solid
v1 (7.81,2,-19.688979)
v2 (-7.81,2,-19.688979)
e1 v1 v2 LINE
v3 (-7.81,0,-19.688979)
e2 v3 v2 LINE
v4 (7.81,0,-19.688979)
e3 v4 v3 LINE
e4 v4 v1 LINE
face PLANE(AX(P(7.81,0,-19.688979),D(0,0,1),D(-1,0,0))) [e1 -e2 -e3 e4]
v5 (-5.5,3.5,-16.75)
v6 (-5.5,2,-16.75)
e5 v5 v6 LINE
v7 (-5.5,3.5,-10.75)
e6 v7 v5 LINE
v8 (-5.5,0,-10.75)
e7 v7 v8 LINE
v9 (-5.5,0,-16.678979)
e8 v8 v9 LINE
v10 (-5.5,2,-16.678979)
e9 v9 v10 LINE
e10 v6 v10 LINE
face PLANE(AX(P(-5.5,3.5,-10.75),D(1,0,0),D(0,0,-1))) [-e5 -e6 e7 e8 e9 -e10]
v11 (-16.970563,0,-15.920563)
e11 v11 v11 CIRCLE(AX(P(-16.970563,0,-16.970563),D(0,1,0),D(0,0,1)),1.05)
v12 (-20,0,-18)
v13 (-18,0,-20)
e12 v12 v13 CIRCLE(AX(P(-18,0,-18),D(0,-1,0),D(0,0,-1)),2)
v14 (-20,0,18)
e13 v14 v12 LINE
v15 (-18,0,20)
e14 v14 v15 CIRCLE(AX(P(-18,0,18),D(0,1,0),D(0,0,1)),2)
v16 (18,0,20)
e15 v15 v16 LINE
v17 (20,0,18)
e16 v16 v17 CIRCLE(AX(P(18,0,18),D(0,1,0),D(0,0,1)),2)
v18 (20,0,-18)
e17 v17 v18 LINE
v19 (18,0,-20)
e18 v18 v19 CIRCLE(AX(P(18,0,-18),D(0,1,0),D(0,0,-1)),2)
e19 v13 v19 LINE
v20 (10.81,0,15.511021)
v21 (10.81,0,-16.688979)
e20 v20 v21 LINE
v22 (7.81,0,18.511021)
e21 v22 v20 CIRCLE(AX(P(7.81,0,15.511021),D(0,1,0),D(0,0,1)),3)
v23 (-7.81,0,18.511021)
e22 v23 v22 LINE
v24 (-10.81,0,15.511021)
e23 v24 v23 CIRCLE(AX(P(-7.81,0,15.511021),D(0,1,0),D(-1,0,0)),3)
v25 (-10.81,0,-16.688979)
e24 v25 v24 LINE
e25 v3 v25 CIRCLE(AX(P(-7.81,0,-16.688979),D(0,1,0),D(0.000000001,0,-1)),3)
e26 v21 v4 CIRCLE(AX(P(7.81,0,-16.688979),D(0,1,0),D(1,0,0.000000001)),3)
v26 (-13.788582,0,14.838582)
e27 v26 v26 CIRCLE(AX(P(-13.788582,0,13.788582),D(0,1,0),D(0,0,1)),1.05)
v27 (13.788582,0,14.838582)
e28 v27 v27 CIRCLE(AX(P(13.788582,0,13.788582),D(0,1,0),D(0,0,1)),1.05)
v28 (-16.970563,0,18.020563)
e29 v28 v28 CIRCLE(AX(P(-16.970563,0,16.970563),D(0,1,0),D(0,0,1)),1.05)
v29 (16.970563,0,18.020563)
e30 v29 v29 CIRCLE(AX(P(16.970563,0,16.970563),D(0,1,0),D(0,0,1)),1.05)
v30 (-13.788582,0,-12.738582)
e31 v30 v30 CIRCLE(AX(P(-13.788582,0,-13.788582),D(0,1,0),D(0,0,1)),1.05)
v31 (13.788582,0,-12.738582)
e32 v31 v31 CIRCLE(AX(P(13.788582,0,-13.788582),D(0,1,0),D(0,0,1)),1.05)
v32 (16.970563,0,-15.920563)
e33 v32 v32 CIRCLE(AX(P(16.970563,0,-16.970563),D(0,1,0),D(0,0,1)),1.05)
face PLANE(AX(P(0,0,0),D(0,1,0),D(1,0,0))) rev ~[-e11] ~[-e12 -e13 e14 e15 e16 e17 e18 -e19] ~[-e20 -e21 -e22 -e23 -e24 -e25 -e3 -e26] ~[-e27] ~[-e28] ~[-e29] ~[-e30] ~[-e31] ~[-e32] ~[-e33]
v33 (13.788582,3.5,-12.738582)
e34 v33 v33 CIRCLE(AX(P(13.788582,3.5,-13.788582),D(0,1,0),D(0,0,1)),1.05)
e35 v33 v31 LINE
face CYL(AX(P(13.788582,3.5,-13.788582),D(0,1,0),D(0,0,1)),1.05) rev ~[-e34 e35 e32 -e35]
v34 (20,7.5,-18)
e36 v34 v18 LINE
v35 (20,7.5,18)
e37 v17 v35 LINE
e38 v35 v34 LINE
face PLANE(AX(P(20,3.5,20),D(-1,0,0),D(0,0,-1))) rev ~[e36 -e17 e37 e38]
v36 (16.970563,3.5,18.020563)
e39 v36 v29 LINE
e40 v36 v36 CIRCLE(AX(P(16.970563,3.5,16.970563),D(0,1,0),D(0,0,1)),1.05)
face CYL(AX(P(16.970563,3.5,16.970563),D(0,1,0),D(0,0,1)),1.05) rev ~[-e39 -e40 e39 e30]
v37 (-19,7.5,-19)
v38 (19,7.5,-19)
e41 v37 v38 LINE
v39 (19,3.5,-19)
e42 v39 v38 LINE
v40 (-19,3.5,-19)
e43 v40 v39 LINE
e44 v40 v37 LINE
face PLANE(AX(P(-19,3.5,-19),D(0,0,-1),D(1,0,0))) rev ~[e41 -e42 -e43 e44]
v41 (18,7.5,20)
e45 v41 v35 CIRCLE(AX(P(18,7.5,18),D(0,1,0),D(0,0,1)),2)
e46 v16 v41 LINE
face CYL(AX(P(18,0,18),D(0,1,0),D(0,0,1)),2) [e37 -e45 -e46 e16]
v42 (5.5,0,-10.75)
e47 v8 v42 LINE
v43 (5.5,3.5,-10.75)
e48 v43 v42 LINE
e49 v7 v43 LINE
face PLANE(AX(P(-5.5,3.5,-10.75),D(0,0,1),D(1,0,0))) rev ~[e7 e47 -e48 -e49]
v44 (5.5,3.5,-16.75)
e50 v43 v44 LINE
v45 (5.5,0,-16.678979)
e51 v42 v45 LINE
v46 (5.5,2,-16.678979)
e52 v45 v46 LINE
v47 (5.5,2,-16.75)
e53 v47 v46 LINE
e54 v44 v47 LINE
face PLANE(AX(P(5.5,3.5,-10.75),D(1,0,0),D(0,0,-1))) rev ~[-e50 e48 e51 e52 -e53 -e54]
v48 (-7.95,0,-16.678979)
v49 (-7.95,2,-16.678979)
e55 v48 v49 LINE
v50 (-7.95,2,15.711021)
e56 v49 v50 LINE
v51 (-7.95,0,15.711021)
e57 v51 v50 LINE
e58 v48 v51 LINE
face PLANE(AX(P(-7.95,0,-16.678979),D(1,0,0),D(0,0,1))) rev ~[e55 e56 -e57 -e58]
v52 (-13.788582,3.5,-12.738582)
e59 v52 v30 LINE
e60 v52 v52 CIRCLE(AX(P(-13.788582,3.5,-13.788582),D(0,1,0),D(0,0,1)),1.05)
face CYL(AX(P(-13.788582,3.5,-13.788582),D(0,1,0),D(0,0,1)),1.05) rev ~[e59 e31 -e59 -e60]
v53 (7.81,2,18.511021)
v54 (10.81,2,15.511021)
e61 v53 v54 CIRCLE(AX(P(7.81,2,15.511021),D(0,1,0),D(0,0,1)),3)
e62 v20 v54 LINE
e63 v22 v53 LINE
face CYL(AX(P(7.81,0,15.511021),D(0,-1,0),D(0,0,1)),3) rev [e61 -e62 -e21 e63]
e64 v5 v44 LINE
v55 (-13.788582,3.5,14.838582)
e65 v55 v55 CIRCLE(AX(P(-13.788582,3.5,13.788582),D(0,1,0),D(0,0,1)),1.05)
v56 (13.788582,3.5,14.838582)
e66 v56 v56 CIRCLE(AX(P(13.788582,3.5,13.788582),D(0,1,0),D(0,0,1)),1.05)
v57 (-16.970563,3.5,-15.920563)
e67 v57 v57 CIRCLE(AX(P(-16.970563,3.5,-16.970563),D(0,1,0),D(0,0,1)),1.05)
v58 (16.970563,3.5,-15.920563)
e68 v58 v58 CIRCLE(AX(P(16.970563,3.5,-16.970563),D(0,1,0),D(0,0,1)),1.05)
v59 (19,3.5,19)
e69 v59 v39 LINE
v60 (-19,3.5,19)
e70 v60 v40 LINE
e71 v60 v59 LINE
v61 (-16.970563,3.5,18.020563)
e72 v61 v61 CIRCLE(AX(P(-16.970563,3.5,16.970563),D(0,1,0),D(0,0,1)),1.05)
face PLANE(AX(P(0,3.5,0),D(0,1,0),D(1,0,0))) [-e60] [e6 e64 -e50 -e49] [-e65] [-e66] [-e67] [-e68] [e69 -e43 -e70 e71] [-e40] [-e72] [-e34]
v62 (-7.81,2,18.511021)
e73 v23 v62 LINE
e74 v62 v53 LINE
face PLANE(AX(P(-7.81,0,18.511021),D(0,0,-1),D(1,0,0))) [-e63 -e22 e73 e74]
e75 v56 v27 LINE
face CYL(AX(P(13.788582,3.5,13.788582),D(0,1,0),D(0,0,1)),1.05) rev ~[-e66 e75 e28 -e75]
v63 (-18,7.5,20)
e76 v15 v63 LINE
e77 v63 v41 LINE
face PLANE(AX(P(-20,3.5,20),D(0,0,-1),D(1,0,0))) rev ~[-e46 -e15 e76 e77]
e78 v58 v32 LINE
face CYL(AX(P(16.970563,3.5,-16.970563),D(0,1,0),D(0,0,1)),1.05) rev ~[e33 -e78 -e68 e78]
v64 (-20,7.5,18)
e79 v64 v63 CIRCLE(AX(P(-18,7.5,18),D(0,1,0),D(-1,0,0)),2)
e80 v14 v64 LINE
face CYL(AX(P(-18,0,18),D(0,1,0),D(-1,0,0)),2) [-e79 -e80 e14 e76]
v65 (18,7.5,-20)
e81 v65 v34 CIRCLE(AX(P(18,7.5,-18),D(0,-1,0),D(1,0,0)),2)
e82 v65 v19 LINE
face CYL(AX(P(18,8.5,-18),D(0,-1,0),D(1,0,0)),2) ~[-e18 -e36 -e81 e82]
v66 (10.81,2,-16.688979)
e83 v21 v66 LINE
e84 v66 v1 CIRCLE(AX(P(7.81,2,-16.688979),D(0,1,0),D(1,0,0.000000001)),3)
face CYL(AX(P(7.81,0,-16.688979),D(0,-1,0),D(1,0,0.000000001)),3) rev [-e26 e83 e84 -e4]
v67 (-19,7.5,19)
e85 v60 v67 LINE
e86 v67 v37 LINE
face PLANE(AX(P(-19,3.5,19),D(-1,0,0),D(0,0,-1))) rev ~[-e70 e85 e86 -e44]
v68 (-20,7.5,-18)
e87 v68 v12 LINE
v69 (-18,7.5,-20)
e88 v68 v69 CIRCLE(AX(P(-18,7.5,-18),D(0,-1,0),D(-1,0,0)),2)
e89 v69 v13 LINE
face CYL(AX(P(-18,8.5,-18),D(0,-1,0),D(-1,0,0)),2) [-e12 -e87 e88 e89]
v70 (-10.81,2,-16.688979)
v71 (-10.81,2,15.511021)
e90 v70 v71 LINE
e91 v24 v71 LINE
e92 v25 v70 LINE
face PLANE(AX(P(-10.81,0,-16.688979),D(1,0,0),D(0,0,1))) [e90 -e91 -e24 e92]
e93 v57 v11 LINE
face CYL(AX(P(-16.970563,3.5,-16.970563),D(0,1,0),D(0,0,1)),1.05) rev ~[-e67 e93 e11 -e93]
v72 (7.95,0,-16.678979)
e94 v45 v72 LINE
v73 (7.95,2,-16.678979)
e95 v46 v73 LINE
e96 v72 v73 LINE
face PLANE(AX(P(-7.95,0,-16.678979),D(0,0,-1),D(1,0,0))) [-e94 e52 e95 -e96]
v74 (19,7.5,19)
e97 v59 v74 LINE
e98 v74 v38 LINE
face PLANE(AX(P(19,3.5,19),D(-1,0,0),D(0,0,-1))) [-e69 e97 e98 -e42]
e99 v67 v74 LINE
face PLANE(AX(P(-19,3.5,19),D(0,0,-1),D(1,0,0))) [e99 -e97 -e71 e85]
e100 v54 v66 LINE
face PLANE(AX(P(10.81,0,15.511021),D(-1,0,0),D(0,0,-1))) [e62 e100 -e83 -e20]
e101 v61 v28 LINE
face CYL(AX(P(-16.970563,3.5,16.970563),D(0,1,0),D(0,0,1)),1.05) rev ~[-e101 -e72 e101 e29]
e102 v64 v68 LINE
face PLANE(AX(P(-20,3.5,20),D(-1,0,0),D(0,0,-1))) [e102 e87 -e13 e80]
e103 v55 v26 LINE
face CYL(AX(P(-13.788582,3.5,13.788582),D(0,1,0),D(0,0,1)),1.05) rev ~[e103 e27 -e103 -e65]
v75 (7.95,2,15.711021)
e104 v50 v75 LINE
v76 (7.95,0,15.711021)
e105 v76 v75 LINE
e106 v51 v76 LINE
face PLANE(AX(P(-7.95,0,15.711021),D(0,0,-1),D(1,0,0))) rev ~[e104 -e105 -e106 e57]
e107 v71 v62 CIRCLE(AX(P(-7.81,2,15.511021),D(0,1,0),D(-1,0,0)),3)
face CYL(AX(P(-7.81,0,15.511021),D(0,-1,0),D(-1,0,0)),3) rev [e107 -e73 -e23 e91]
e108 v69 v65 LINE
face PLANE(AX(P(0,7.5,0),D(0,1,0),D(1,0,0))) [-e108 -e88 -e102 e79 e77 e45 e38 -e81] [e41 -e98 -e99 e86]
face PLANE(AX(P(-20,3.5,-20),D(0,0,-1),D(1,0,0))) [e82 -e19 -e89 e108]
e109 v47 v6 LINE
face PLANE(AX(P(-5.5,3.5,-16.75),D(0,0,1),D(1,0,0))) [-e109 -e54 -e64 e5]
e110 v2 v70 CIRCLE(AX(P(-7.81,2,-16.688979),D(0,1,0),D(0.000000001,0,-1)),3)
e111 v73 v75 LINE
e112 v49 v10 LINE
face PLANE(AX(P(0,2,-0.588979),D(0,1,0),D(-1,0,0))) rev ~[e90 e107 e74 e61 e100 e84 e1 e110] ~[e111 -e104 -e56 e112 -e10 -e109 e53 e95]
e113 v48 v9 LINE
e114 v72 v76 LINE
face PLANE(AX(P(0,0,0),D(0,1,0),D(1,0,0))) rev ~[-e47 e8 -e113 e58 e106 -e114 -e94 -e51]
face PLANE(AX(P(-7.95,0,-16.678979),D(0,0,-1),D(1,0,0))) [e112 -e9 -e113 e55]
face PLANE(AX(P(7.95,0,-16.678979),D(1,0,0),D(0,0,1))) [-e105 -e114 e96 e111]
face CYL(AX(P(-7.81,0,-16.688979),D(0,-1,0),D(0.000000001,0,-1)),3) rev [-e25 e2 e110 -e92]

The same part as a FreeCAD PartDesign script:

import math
import FreeCAD as App
import Part
import Sketcher
from FreeCAD import Vector


def edges_at(feature, points):
    """Names of the edges that pass closest to the given points."""
    edges = feature.Shape.Edges
    near = lambda p: min(range(len(edges)), key=lambda i: edges[i].distToShape(Part.Vertex(*p))[0])
    return sorted({f"Edge{near(p) + 1}" for p in points})

doc = App.newDocument("Part")
body = doc.addObject("PartDesign::Body", "Body")

# Sketch on XZ plane
sketch1 = doc.addObject("Sketcher::SketchObject", "Sketch")
body.addObject(sketch1)
sketch1.AttachmentSupport = (doc.XZ_Plane, [""])
sketch1.MapMode = "FlatFace"
sketch1.addGeometry(Part.LineSegment(Vector(-20, -20, 0), Vector(-20, 20, 0)), False)
sketch1.addGeometry(Part.LineSegment(Vector(-20, 20, 0), Vector(20, 20, 0)), False)
sketch1.addGeometry(Part.LineSegment(Vector(20, 20, 0), Vector(20, -20, 0)), False)
sketch1.addGeometry(Part.LineSegment(Vector(20, -20, 0), Vector(-20, -20, 0)), False)
sketch1.addConstraint(Sketcher.Constraint("Coincident", 0, 2, 1, 1))
sketch1.addConstraint(Sketcher.Constraint("Coincident", 1, 2, 2, 1))
sketch1.addConstraint(Sketcher.Constraint("Coincident", 2, 2, 3, 1))
sketch1.addConstraint(Sketcher.Constraint("Coincident", 3, 2, 0, 1))
sketch1.addConstraint(Sketcher.Constraint("Vertical", 0))
sketch1.addConstraint(Sketcher.Constraint("Horizontal", 1))
sketch1.addConstraint(Sketcher.Constraint("Vertical", 2))
sketch1.addConstraint(Sketcher.Constraint("Horizontal", 3))
sketch1.addConstraint(Sketcher.Constraint("Symmetric", 0, 2, 2, 2, -1, 1))
sketch1.addConstraint(Sketcher.Constraint("Equal", 3, 0))
sketch1.addConstraint(Sketcher.Constraint("DistanceX", 1, 1, 1, 2, 40.0))
pad1 = doc.addObject("PartDesign::Pad", "Pad")
body.addObject(pad1)
pad1.Profile = sketch1
pad1.Length = 3.5
pad1.Reversed = True

# Sketch on XZ plane
sketch2 = doc.addObject("Sketcher::SketchObject", "Sketch001")
body.addObject(sketch2)
sketch2.AttachmentSupport = (doc.XZ_Plane, [""])
sketch2.MapMode = "FlatFace"
sketch2.AttachmentOffset = App.Placement(Vector(0, 0, -3.5), App.Rotation())
sketch2.addGeometry(Part.Circle(Vector(-17, -17, 0), Vector(0, 0, 1), 1.1), False)
sketch2.addGeometry(Part.Circle(Vector(17, -17, 0), Vector(0, 0, 1), 1.1), False)
sketch2.addGeometry(Part.Circle(Vector(-17, 17, 0), Vector(0, 0, 1), 1.1), False)
sketch2.addGeometry(Part.Circle(Vector(17, 17, 0), Vector(0, 0, 1), 1.1), False)
sketch2.addGeometry(Part.Circle(Vector(-13.8, -13.8, 0), Vector(0, 0, 1), 1.1), False)
sketch2.addGeometry(Part.Circle(Vector(13.8, -13.8, 0), Vector(0, 0, 1), 1.1), False)
sketch2.addGeometry(Part.Circle(Vector(13.8, 13.8, 0), Vector(0, 0, 1), 1.1), False)
sketch2.addGeometry(Part.Circle(Vector(-13.8, 13.8, 0), Vector(0, 0, 1), 1.1), False)
sketch2.addConstraint(Sketcher.Constraint("Equal", 0, 1))
sketch2.addConstraint(Sketcher.Constraint("Equal", 1, 2))
sketch2.addConstraint(Sketcher.Constraint("Equal", 2, 3))
sketch2.addConstraint(Sketcher.Constraint("Equal", 3, 4))
sketch2.addConstraint(Sketcher.Constraint("Equal", 4, 5))
sketch2.addConstraint(Sketcher.Constraint("Equal", 5, 6))
sketch2.addConstraint(Sketcher.Constraint("Equal", 6, 7))
sketch2.addConstraint(Sketcher.Constraint("Symmetric", 1, 3, 2, 3, -1, 1))
sketch2.addConstraint(Sketcher.Constraint("Symmetric", 0, 3, 3, 3, -1, 1))
sketch2.addConstraint(Sketcher.Constraint("Symmetric", 4, 3, 6, 3, -1, 1))
sketch2.addConstraint(Sketcher.Constraint("Symmetric", 5, 3, 7, 3, -1, 1))
sketch2.addConstraint(Sketcher.Constraint("Symmetric", 0, 3, 1, 3, -2))
sketch2.addConstraint(Sketcher.Constraint("Symmetric", 4, 3, 5, 3, -2))
sketch2.addConstraint(Sketcher.Constraint("Diameter", 0, 2.1))
sketch2.addConstraint(Sketcher.Constraint("DistanceX", 0, 3, 4, 3, 3.181981))
sketch2.addConstraint(Sketcher.Constraint("DistanceY", 0, 3, 4, 3, 3.181981))
sketch2.addConstraint(Sketcher.Constraint("DistanceX", 0, 3, -1, 1, 16.970563))
sketch2.addConstraint(Sketcher.Constraint("DistanceY", 0, 3, -1, 1, 16.970563))
pocket1 = doc.addObject("PartDesign::Pocket", "Pocket")
body.addObject(pocket1)
pocket1.Profile = sketch2
pocket1.Length = 3.5
pocket1.Reversed = True

# Sketch on XZ plane
sketch3 = doc.addObject("Sketcher::SketchObject", "Sketch002")
body.addObject(sketch3)
sketch3.AttachmentSupport = (doc.XZ_Plane, [""])
sketch3.MapMode = "FlatFace"
sketch3.AttachmentOffset = App.Placement(Vector(0, 0, -3.5), App.Rotation())
sketch3.addGeometry(Part.LineSegment(Vector(-20, -20, 0), Vector(-20, 20, 0)), False)
sketch3.addGeometry(Part.LineSegment(Vector(-20, 20, 0), Vector(20, 20, 0)), False)
sketch3.addGeometry(Part.LineSegment(Vector(20, 20, 0), Vector(20, -20, 0)), False)
sketch3.addGeometry(Part.LineSegment(Vector(20, -20, 0), Vector(-20, -20, 0)), False)
sketch3.addGeometry(Part.LineSegment(Vector(19, 19, 0), Vector(-19, 19, 0)), False)
sketch3.addGeometry(Part.LineSegment(Vector(-19, 19, 0), Vector(-19, -19, 0)), False)
sketch3.addGeometry(Part.LineSegment(Vector(-19, -19, 0), Vector(19, -19, 0)), False)
sketch3.addGeometry(Part.LineSegment(Vector(19, -19, 0), Vector(19, 19, 0)), False)
sketch3.addConstraint(Sketcher.Constraint("Coincident", 0, 2, 1, 1))
sketch3.addConstraint(Sketcher.Constraint("Coincident", 1, 2, 2, 1))
sketch3.addConstraint(Sketcher.Constraint("Coincident", 2, 2, 3, 1))
sketch3.addConstraint(Sketcher.Constraint("Coincident", 3, 2, 0, 1))
sketch3.addConstraint(Sketcher.Constraint("Coincident", 4, 2, 5, 1))
sketch3.addConstraint(Sketcher.Constraint("Coincident", 5, 2, 6, 1))
sketch3.addConstraint(Sketcher.Constraint("Coincident", 6, 2, 7, 1))
sketch3.addConstraint(Sketcher.Constraint("Coincident", 7, 2, 4, 1))
sketch3.addConstraint(Sketcher.Constraint("Vertical", 0))
sketch3.addConstraint(Sketcher.Constraint("Horizontal", 1))
sketch3.addConstraint(Sketcher.Constraint("Vertical", 2))
sketch3.addConstraint(Sketcher.Constraint("Horizontal", 3))
sketch3.addConstraint(Sketcher.Constraint("Horizontal", 4))
sketch3.addConstraint(Sketcher.Constraint("Vertical", 5))
sketch3.addConstraint(Sketcher.Constraint("Horizontal", 6))
sketch3.addConstraint(Sketcher.Constraint("Vertical", 7))
sketch3.addConstraint(Sketcher.Constraint("Symmetric", 0, 2, 2, 2, -1, 1))
sketch3.addConstraint(Sketcher.Constraint("Symmetric", 4, 2, 6, 2, -1, 1))
sketch3.addConstraint(Sketcher.Constraint("Equal", 3, 0))
sketch3.addConstraint(Sketcher.Constraint("Equal", 6, 5))
sketch3.addConstraint(Sketcher.Constraint("DistanceX", 1, 1, 1, 2, 40.0))
sketch3.addConstraint(Sketcher.Constraint("DistanceX", 4, 2, 4, 1, 38.0))
pad2 = doc.addObject("PartDesign::Pad", "Pad001")
body.addObject(pad2)
pad2.Profile = sketch3
pad2.Length = 5
pad2.Reversed = True
doc.recompute()

fillet = doc.addObject("PartDesign::Fillet", "Fillet")
body.addObject(fillet)
fillet.Base = (pad2, edges_at(pad2, [
    (20, 4.25, 20),
    (-20, 4.25, 20),
    (-20, 4.25, -20),
    (20, 4.25, -20),
]))
fillet.Radius = 2

# Sketch on XZ plane
sketch4 = doc.addObject("Sketcher::SketchObject", "Sketch003")
body.addObject(sketch4)
sketch4.AttachmentSupport = (doc.XZ_Plane, [""])
sketch4.MapMode = "FlatFace"
sketch4.AttachmentOffset = App.Placement(Vector(0, 0, -3.5), App.Rotation())
sketch4.addGeometry(Part.LineSegment(Vector(-6, -17, 0), Vector(-6, -11, 0)), False)
sketch4.addGeometry(Part.LineSegment(Vector(-6, -11, 0), Vector(6, -11, 0)), False)
sketch4.addGeometry(Part.LineSegment(Vector(6, -11, 0), Vector(6, -17, 0)), False)
sketch4.addGeometry(Part.LineSegment(Vector(6, -17, 0), Vector(-6, -17, 0)), False)
sketch4.addConstraint(Sketcher.Constraint("Coincident", 0, 2, 1, 1))
sketch4.addConstraint(Sketcher.Constraint("Coincident", 1, 2, 2, 1))
sketch4.addConstraint(Sketcher.Constraint("Coincident", 2, 2, 3, 1))
sketch4.addConstraint(Sketcher.Constraint("Coincident", 3, 2, 0, 1))
sketch4.addConstraint(Sketcher.Constraint("Vertical", 0))
sketch4.addConstraint(Sketcher.Constraint("Horizontal", 1))
sketch4.addConstraint(Sketcher.Constraint("Vertical", 2))
sketch4.addConstraint(Sketcher.Constraint("Horizontal", 3))
sketch4.addConstraint(Sketcher.Constraint("DistanceX", 1, 1, 1, 2, 11.0))
sketch4.addConstraint(Sketcher.Constraint("DistanceY", 0, 1, 0, 2, 6.0))
sketch4.addConstraint(Sketcher.Constraint("DistanceX", 0, 2, -1, 1, 5.5))
sketch4.addConstraint(Sketcher.Constraint("DistanceY", 0, 2, -1, 1, 10.75))
pocket2 = doc.addObject("PartDesign::Pocket", "Pocket001")
body.addObject(pocket2)
pocket2.Profile = sketch4
pocket2.Length = 5
pocket2.Reversed = True

# Sketch on XZ plane
sketch5 = doc.addObject("Sketcher::SketchObject", "Sketch004")
body.addObject(sketch5)
sketch5.AttachmentSupport = (doc.XZ_Plane, [""])
sketch5.MapMode = "FlatFace"
sketch5.addGeometry(Part.LineSegment(Vector(7.8, 18.5, 0), Vector(-7.8, 18.5, 0)), False)
sketch5.addGeometry(Part.ArcOfCircle(Part.Circle(Vector(-7.8, 15.5, 0), Vector(0, 0, 1), 3), math.radians(90), math.radians(180)), False)
sketch5.addGeometry(Part.LineSegment(Vector(-10.8, 15.5, 0), Vector(-10.8, -16.7, 0)), False)
sketch5.addGeometry(Part.ArcOfCircle(Part.Circle(Vector(-7.8, -16.7, 0), Vector(0, 0, 1), 3), math.radians(180), math.radians(270)), False)
sketch5.addGeometry(Part.LineSegment(Vector(-7.8, -19.7, 0), Vector(7.8, -19.7, 0)), False)
sketch5.addGeometry(Part.ArcOfCircle(Part.Circle(Vector(7.8, -16.7, 0), Vector(0, 0, 1), 3), math.radians(-90), math.radians(0)), False)
sketch5.addGeometry(Part.LineSegment(Vector(10.8, -16.7, 0), Vector(10.8, 15.5, 0)), False)
sketch5.addGeometry(Part.ArcOfCircle(Part.Circle(Vector(7.8, 15.5, 0), Vector(0, 0, 1), 3), math.radians(0), math.radians(90)), False)
sketch5.addGeometry(Part.LineSegment(Vector(-8, -16.7, 0), Vector(-8, 15.7, 0)), False)
sketch5.addGeometry(Part.LineSegment(Vector(-8, 15.7, 0), Vector(8, 15.7, 0)), False)
sketch5.addGeometry(Part.LineSegment(Vector(8, 15.7, 0), Vector(8, -16.7, 0)), False)
sketch5.addGeometry(Part.LineSegment(Vector(8, -16.7, 0), Vector(-8, -16.7, 0)), False)
sketch5.addConstraint(Sketcher.Constraint("Tangent", 0, 2, 1, 1))
sketch5.addConstraint(Sketcher.Constraint("Tangent", 1, 2, 2, 1))
sketch5.addConstraint(Sketcher.Constraint("Tangent", 2, 2, 3, 1))
sketch5.addConstraint(Sketcher.Constraint("Tangent", 3, 2, 4, 1))
sketch5.addConstraint(Sketcher.Constraint("Tangent", 4, 2, 5, 1))
sketch5.addConstraint(Sketcher.Constraint("Tangent", 5, 2, 6, 1))
sketch5.addConstraint(Sketcher.Constraint("Tangent", 6, 2, 7, 1))
sketch5.addConstraint(Sketcher.Constraint("Tangent", 7, 2, 0, 1))
sketch5.addConstraint(Sketcher.Constraint("Coincident", 8, 2, 9, 1))
sketch5.addConstraint(Sketcher.Constraint("Coincident", 9, 2, 10, 1))
sketch5.addConstraint(Sketcher.Constraint("Coincident", 10, 2, 11, 1))
sketch5.addConstraint(Sketcher.Constraint("Coincident", 11, 2, 8, 1))
sketch5.addConstraint(Sketcher.Constraint("Horizontal", 0))
sketch5.addConstraint(Sketcher.Constraint("Vertical", 2))
sketch5.addConstraint(Sketcher.Constraint("Horizontal", 4))
sketch5.addConstraint(Sketcher.Constraint("Vertical", 6))
sketch5.addConstraint(Sketcher.Constraint("Vertical", 8))
sketch5.addConstraint(Sketcher.Constraint("Horizontal", 9))
sketch5.addConstraint(Sketcher.Constraint("Vertical", 10))
sketch5.addConstraint(Sketcher.Constraint("Horizontal", 11))
sketch5.addConstraint(Sketcher.Constraint("Equal", 1, 3))
sketch5.addConstraint(Sketcher.Constraint("Equal", 3, 5))
sketch5.addConstraint(Sketcher.Constraint("Equal", 5, 7))
sketch5.addConstraint(Sketcher.Constraint("Radius", 1, 3.0))
sketch5.addConstraint(Sketcher.Constraint("DistanceX", 9, 1, 9, 2, 15.9))
sketch5.addConstraint(Sketcher.Constraint("DistanceY", 2, 2, 2, 1, 32.2))
sketch5.addConstraint(Sketcher.Constraint("DistanceX", 0, 2, 0, 1, 15.62))
sketch5.addConstraint(Sketcher.Constraint("DistanceY", 8, 1, 8, 2, 32.39))
sketch5.addConstraint(Sketcher.Constraint("DistanceY", 1, 3, 8, 2, 0.2))
sketch5.addConstraint(Sketcher.Constraint("DistanceX", 1, 3, -1, 1, 7.81))
sketch5.addConstraint(Sketcher.Constraint("DistanceX", 8, 2, -1, 1, 7.95))
sketch5.addConstraint(Sketcher.Constraint("DistanceY", -1, 1, 1, 3, 15.511021))
pocket3 = doc.addObject("PartDesign::Pocket", "Pocket002")
body.addObject(pocket3)
pocket3.Profile = sketch5
pocket3.Length = 2

# Sketch on XZ plane
sketch6 = doc.addObject("Sketcher::SketchObject", "Sketch005")
body.addObject(sketch6)
sketch6.AttachmentSupport = (doc.XZ_Plane, [""])
sketch6.MapMode = "FlatFace"
sketch6.AttachmentOffset = App.Placement(Vector(0, 0, -8.5), App.Rotation())
sketch6.addGeometry(Part.LineSegment(Vector(-22, -22, 0), Vector(-22, 22, 0)), False)
sketch6.addGeometry(Part.LineSegment(Vector(-22, 22, 0), Vector(22, 22, 0)), False)
sketch6.addGeometry(Part.LineSegment(Vector(22, 22, 0), Vector(22, -22, 0)), False)
sketch6.addGeometry(Part.LineSegment(Vector(22, -22, 0), Vector(-22, -22, 0)), False)
sketch6.addConstraint(Sketcher.Constraint("Coincident", 0, 2, 1, 1))
sketch6.addConstraint(Sketcher.Constraint("Coincident", 1, 2, 2, 1))
sketch6.addConstraint(Sketcher.Constraint("Coincident", 2, 2, 3, 1))
sketch6.addConstraint(Sketcher.Constraint("Coincident", 3, 2, 0, 1))
sketch6.addConstraint(Sketcher.Constraint("Vertical", 0))
sketch6.addConstraint(Sketcher.Constraint("Horizontal", 1))
sketch6.addConstraint(Sketcher.Constraint("Vertical", 2))
sketch6.addConstraint(Sketcher.Constraint("Horizontal", 3))
sketch6.addConstraint(Sketcher.Constraint("Symmetric", 0, 2, 2, 2, -1, 1))
sketch6.addConstraint(Sketcher.Constraint("DistanceX", 1, 1, 1, 2, 43.568171))
sketch6.addConstraint(Sketcher.Constraint("DistanceY", 0, 1, 0, 2, 43.096637))
pocket4 = doc.addObject("PartDesign::Pocket", "Pocket003")
body.addObject(pocket4)
pocket4.Profile = sketch6
pocket4.Length = 1
pocket4.Reversed = True

doc.recompute()
